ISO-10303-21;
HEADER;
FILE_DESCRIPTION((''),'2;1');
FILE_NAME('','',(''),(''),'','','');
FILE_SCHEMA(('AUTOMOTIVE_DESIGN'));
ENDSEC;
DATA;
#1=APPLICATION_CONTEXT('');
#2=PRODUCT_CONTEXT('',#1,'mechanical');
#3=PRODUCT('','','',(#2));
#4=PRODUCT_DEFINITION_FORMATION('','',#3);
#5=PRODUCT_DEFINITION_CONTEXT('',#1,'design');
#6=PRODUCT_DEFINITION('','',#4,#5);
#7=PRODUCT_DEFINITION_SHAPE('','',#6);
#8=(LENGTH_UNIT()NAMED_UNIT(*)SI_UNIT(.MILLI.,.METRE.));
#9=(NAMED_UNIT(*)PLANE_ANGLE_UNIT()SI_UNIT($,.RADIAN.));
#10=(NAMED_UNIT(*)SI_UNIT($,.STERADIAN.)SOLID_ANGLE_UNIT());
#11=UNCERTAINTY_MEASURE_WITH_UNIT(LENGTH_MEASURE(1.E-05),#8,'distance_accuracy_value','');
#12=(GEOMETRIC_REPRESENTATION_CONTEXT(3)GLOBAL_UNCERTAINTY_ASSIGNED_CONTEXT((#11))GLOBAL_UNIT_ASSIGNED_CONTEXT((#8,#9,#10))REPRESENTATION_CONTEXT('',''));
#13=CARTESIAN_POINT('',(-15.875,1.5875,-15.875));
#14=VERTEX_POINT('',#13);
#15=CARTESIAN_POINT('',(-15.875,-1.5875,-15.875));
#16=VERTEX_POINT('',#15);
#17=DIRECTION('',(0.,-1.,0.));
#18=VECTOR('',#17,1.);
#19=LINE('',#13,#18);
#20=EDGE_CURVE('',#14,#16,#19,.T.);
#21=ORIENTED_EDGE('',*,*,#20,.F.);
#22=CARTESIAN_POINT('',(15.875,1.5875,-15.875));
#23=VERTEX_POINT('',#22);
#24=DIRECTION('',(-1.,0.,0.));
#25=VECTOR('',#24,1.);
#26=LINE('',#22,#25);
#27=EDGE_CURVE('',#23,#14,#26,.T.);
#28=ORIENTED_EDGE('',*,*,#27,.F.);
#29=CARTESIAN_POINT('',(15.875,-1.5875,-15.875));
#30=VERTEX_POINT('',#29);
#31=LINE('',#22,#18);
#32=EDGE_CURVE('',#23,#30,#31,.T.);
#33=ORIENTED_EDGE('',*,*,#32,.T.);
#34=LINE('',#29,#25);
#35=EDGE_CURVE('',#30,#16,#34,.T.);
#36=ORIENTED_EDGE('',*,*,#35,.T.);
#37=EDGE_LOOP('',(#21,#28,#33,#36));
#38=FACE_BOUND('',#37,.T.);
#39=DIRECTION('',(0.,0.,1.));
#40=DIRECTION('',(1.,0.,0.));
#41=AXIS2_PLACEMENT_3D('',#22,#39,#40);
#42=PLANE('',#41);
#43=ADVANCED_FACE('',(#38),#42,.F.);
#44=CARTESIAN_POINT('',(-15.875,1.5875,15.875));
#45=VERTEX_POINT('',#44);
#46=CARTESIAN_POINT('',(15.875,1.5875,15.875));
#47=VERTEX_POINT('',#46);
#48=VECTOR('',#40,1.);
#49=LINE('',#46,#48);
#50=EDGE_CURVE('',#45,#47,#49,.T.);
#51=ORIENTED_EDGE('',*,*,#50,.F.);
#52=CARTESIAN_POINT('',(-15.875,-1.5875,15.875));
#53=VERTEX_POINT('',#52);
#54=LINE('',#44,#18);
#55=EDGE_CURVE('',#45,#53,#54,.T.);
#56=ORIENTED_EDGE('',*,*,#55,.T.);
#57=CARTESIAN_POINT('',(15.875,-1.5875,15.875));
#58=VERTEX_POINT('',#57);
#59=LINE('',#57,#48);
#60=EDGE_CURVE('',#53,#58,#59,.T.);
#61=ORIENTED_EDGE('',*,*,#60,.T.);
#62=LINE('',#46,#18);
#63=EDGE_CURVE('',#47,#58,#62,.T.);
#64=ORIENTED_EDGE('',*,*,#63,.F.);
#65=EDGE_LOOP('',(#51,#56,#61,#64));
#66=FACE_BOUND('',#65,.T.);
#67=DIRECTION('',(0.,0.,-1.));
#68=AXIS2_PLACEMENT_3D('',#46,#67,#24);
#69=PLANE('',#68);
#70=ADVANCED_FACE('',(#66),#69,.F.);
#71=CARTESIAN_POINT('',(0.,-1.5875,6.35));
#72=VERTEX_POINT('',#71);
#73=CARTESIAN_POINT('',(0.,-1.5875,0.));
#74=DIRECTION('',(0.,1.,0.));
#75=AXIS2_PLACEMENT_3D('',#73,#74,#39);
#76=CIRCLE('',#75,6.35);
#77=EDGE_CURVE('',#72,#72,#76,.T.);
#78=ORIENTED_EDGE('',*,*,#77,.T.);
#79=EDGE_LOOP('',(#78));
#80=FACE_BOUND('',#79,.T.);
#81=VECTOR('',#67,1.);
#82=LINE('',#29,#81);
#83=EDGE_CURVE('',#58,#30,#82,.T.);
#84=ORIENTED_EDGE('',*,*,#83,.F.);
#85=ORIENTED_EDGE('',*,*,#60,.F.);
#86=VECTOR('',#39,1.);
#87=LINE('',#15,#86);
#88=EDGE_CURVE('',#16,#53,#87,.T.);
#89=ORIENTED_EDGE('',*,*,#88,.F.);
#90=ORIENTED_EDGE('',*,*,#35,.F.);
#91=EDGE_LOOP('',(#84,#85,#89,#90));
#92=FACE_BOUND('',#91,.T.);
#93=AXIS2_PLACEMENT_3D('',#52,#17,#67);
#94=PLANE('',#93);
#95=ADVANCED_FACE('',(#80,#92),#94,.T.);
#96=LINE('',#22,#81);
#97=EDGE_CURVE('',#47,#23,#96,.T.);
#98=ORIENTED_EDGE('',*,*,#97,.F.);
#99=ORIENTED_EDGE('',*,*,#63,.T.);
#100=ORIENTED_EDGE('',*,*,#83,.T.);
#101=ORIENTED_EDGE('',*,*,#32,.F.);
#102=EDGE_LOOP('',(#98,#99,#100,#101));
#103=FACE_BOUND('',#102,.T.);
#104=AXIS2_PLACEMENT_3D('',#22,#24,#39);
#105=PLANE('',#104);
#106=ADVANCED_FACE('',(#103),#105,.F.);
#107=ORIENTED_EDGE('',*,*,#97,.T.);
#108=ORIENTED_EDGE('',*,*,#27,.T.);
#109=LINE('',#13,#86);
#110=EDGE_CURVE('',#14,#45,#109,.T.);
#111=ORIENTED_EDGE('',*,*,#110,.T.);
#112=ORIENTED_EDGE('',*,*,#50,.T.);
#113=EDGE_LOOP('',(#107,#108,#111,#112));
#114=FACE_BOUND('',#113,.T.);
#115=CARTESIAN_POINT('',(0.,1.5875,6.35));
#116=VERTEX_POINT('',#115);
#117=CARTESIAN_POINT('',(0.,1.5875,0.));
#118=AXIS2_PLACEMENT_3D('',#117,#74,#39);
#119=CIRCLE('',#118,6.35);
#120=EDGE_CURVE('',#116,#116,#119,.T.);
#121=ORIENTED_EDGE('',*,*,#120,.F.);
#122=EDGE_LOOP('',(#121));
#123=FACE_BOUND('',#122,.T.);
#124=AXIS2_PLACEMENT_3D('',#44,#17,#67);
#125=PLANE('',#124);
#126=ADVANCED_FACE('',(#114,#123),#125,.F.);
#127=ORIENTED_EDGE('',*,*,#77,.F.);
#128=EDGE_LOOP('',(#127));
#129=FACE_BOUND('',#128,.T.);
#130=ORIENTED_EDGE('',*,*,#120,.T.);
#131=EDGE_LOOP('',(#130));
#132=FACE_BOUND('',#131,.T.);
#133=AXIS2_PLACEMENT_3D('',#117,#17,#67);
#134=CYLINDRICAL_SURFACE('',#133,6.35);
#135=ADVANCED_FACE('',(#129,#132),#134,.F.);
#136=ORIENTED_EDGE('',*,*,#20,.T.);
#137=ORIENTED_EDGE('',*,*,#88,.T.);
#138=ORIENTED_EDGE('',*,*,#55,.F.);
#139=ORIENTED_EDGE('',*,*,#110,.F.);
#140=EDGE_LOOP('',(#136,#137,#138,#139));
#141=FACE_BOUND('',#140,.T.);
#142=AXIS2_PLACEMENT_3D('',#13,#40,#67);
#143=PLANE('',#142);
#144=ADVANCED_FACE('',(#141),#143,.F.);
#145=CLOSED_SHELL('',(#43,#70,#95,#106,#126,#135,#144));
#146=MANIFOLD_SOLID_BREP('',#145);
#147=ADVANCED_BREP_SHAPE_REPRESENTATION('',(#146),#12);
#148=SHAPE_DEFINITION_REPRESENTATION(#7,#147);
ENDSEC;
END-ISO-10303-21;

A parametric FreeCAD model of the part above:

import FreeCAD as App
import Part
import Sketcher
Q = App.Units.Quantity

doc = App.newDocument("Part")
body = doc.addObject("PartDesign::Body", "Body")

# Sketch on XZ plane
sketch1 = doc.addObject("Sketcher::SketchObject", "Sketch")
body.addObject(sketch1)
sketch1.AttachmentSupport = (doc.XZ_Plane, [""])
sketch1.MapMode = "FlatFace"
sketch1.addGeometry([
    Part.LineSegment(App.Vector(-16, -16, 0), App.Vector(-16, 16, 0)),  # 0
    Part.LineSegment(App.Vector(-16, 16, 0), App.Vector(16, 16, 0)),  # 1
    Part.LineSegment(App.Vector(16, 16, 0), App.Vector(16, -16, 0)),  # 2
    Part.LineSegment(App.Vector(16, -16, 0), App.Vector(-16, -16, 0)),  # 3
    Part.Circle(App.Vector(0, 0, 0), App.Vector(0, 0, 1), 6),  # 4
], False)
sketch1.addConstraint([
    Sketcher.Constraint("Coincident", 0, 2, 1, 1),
    Sketcher.Constraint("Coincident", 1, 2, 2, 1),
    Sketcher.Constraint("Coincident", 2, 2, 3, 1),
    Sketcher.Constraint("Coincident", 3, 2, 0, 1),
    Sketcher.Constraint("Vertical", 0),
    Sketcher.Constraint("Horizontal", 1),
    Sketcher.Constraint("Vertical", 2),
    Sketcher.Constraint("Horizontal", 3),
    Sketcher.Constraint("Coincident", 4, 3, -1, 1),
    Sketcher.Constraint("Symmetric", 0, 2, 2, 2, -1, 1),
    Sketcher.Constraint("Equal", 3, 0),
    Sketcher.Constraint("Diameter", 4, Q("0.5 in")),
    Sketcher.Constraint("DistanceX", 1, 1, 1, 2, Q("1.25 in")),
])
pad1 = doc.addObject("PartDesign::Pad", "Pad")
body.addObject(pad1)
pad1.Profile = sketch1
pad1.Length = Q("0.125 in")
pad1.Midplane = True

doc.recompute()
